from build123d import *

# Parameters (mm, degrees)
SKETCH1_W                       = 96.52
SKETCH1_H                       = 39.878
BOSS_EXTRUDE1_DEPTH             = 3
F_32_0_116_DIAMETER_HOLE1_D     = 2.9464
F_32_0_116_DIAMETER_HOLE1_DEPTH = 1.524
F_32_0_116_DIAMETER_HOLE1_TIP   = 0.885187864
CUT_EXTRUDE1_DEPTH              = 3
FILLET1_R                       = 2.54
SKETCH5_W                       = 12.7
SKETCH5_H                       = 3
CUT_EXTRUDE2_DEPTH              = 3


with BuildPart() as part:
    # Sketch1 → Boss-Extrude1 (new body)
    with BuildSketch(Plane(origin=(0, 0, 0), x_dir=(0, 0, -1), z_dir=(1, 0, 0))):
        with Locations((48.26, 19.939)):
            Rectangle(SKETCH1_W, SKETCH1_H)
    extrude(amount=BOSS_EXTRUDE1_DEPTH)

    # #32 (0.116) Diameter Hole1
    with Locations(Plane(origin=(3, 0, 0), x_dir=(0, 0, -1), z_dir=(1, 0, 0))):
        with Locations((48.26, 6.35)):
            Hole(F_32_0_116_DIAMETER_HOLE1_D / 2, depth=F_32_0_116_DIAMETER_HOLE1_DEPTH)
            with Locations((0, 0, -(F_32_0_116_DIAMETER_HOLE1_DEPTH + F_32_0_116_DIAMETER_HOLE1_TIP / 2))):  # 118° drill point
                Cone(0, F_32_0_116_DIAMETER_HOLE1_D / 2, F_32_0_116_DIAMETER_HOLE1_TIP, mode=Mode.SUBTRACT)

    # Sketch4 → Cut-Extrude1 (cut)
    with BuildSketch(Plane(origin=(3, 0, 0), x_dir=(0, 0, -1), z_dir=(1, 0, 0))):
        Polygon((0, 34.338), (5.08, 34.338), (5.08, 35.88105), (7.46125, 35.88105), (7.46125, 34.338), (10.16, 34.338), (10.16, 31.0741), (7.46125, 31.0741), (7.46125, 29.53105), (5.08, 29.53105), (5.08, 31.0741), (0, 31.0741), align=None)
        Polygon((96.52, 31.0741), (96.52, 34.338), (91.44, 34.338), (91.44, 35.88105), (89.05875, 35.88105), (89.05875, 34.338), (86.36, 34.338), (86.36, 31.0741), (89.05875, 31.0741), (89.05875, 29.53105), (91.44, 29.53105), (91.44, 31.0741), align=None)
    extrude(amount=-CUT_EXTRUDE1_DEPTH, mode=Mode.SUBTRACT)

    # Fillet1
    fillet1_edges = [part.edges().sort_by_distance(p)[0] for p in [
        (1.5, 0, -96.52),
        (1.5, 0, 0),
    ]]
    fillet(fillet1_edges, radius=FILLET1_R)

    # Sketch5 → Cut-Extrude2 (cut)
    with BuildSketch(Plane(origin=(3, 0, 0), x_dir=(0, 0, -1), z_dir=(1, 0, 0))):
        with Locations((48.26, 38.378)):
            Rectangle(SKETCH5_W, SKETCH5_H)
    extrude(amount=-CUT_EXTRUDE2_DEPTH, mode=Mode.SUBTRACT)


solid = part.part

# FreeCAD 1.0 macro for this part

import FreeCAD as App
import Part
import Sketcher
from FreeCAD import Vector
Q = App.Units.Quantity


def edges_at(feature, points):
    """Names of the edges that pass closest to the given points."""
    edges = feature.Shape.Edges
    near = lambda p: min(range(len(edges)), key=lambda i: edges[i].distToShape(Part.Vertex(*p))[0])
    return sorted({f"Edge{near(p) + 1}" for p in points})

doc = App.newDocument("Part")
body = doc.addObject("PartDesign::Body", "Body")

sketch1 = doc.addObject("Sketcher::SketchObject", "Sketch")
body.addObject(sketch1)
sketch1.AttachmentSupport = (doc.YZ_Plane, [""])
sketch1.MapMode = "FlatFace"
sketch1.addGeometry(Part.LineSegment(Vector(39.878, 0, 0), Vector(0, 0, 0)), False)
sketch1.addGeometry(Part.LineSegment(Vector(0, 0, 0), Vector(0, -96.52, 0)), False)
sketch1.addGeometry(Part.LineSegment(Vector(0, -96.52, 0), Vector(39.878, -96.52, 0)), False)
sketch1.addGeometry(Part.LineSegment(Vector(39.878, -96.52, 0), Vector(39.878, 0, 0)), False)
sketch1.addConstraint(Sketcher.Constraint("Coincident", 0, 2, 1, 1))
sketch1.addConstraint(Sketcher.Constraint("Coincident", 1, 2, 2, 1))
sketch1.addConstraint(Sketcher.Constraint("Coincident", 2, 2, 3, 1))
sketch1.addConstraint(Sketcher.Constraint("Coincident", 3, 2, 0, 1))
sketch1.addConstraint(Sketcher.Constraint("Horizontal", 0))
sketch1.addConstraint(Sketcher.Constraint("Vertical", 1))
sketch1.addConstraint(Sketcher.Constraint("Horizontal", 2))
sketch1.addConstraint(Sketcher.Constraint("Vertical", 3))
sketch1.addConstraint(Sketcher.Constraint("Coincident", 0, 2, -1, 1))
sketch1.addConstraint(Sketcher.Constraint("DistanceY", 1, 2, 1, 1, Q("3.8 in")))
sketch1.addConstraint(Sketcher.Constraint("DistanceX", 0, 2, 0, 1, Q("1.57 in")))
pad1 = doc.addObject("PartDesign::Pad", "Pad")
body.addObject(pad1)
pad1.Profile = sketch1
pad1.Length = 3

sketch2 = doc.addObject("Sketcher::SketchObject", "Sketch001")
body.addObject(sketch2)
sketch2.AttachmentSupport = (doc.YZ_Plane, [""])
sketch2.MapMode = "FlatFace"
sketch2.AttachmentOffset = App.Placement(Vector(0, 0, 3), App.Rotation())
sketch2.addGeometry(Part.Circle(Vector(6.35, -48.26, 0), Vector(0, 0, 1), 1.4732), False)
sketch2.addConstraint(Sketcher.Constraint("Diameter", 0, Q("0.116 in")))
sketch2.addConstraint(Sketcher.Constraint("DistanceY", 0, 3, -1, 1, Q("1.9 in")))
sketch2.addConstraint(Sketcher.Constraint("DistanceX", -1, 1, 0, 3, Q("0.25 in")))
doc.recompute()
hole = doc.addObject("PartDesign::Hole", "Hole")
body.addObject(hole)
hole.Profile = sketch2
hole.ThreadType = "None"
hole.Diameter = Q("0.116 in")
hole.DepthType = "Dimension"
hole.Depth = Q("0.06 in")
hole.DrillPoint = "Angled"
hole.DrillPointAngle = 118

sketch3 = doc.addObject("Sketcher::SketchObject", "Sketch002")
body.addObject(sketch3)
sketch3.AttachmentSupport = (doc.YZ_Plane, [""])
sketch3.MapMode = "FlatFace"
sketch3.AttachmentOffset = App.Placement(Vector(0, 0, 3), App.Rotation())
sketch3.addGeometry(Part.LineSegment(Vector(34.338, -5.08, 0), Vector(34.338, 0, 0)), False)
sketch3.addGeometry(Part.LineSegment(Vector(34.338, 0, 0), Vector(31.0741, 0, 0)), False)
sketch3.addGeometry(Part.LineSegment(Vector(31.0741, 0, 0), Vector(31.0741, -5.08, 0)), False)
sketch3.addGeometry(Part.LineSegment(Vector(31.0741, -5.08, 0), Vector(29.53105, -5.08, 0)), False)
sketch3.addGeometry(Part.LineSegment(Vector(29.53105, -5.08, 0), Vector(29.53105, -7.46125, 0)), False)
sketch3.addGeometry(Part.LineSegment(Vector(29.53105, -7.46125, 0), Vector(31.0741, -7.46125, 0)), False)
sketch3.addGeometry(Part.LineSegment(Vector(31.0741, -7.46125, 0), Vector(31.0741, -10.16, 0)), False)
sketch3.addGeometry(Part.LineSegment(Vector(31.0741, -10.16, 0), Vector(34.338, -10.16, 0)), False)
sketch3.addGeometry(Part.LineSegment(Vector(34.338, -10.16, 0), Vector(34.338, -7.46125, 0)), False)
sketch3.addGeometry(Part.LineSegment(Vector(34.338, -7.46125, 0), Vector(35.88105, -7.46125, 0)), False)
sketch3.addGeometry(Part.LineSegment(Vector(35.88105, -7.46125, 0), Vector(35.88105, -5.08, 0)), False)
sketch3.addGeometry(Part.LineSegment(Vector(35.88105, -5.08, 0), Vector(34.338, -5.08, 0)), False)
sketch3.addGeometry(Part.LineSegment(Vector(31.0741, -96.52, 0), Vector(34.338, -96.52, 0)), False)
sketch3.addGeometry(Part.LineSegment(Vector(34.338, -96.52, 0), Vector(34.338, -91.44, 0)), False)
sketch3.addGeometry(Part.LineSegment(Vector(34.338, -91.44, 0), Vector(35.88105, -91.44, 0)), False)
sketch3.addGeometry(Part.LineSegment(Vector(35.88105, -91.44, 0), Vector(35.88105, -89.05875, 0)), False)
sketch3.addGeometry(Part.LineSegment(Vector(35.88105, -89.05875, 0), Vector(34.338, -89.05875, 0)), False)
sketch3.addGeometry(Part.LineSegment(Vector(34.338, -89.05875, 0), Vector(34.338, -86.36, 0)), False)
sketch3.addGeometry(Part.LineSegment(Vector(34.338, -86.36, 0), Vector(31.0741, -86.36, 0)), False)
sketch3.addGeometry(Part.LineSegment(Vector(31.0741, -86.36, 0), Vector(31.0741, -89.05875, 0)), False)
sketch3.addGeometry(Part.LineSegment(Vector(31.0741, -89.05875, 0), Vector(29.53105, -89.05875, 0)), False)
sketch3.addGeometry(Part.LineSegment(Vector(29.53105, -89.05875, 0), Vector(29.53105, -91.44, 0)), False)
sketch3.addGeometry(Part.LineSegment(Vector(29.53105, -91.44, 0), Vector(31.0741, -91.44, 0)), False)
sketch3.addGeometry(Part.LineSegment(Vector(31.0741, -91.44, 0), Vector(31.0741, -96.52, 0)), False)
sketch3.addConstraint(Sketcher.Constraint("Coincident", 0, 2, 1, 1))
sketch3.addConstraint(Sketcher.Constraint("Coincident", 1, 2, 2, 1))
sketch3.addConstraint(Sketcher.Constraint("Coincident", 2, 2, 3, 1))
sketch3.addConstraint(Sketcher.Constraint("Coincident", 3, 2, 4, 1))
sketch3.addConstraint(Sketcher.Constraint("Coincident", 4, 2, 5, 1))
sketch3.addConstraint(Sketcher.Constraint("Coincident", 5, 2, 6, 1))
sketch3.addConstraint(Sketcher.Constraint("Coincident", 6, 2, 7, 1))
sketch3.addConstraint(Sketcher.Constraint("Coincident", 7, 2, 8, 1))
sketch3.addConstraint(Sketcher.Constraint("Coincident", 8, 2, 9, 1))
sketch3.addConstraint(Sketcher.Constraint("Coincident", 9, 2, 10, 1))
sketch3.addConstraint(Sketcher.Constraint("Coincident", 10, 2, 11, 1))
sketch3.addConstraint(Sketcher.Constraint("Coincident", 11, 2, 0, 1))
sketch3.addConstraint(Sketcher.Constraint("Coincident", 12, 2, 13, 1))
sketch3.addConstraint(Sketcher.Constraint("Coincident", 13, 2, 14, 1))
sketch3.addConstraint(Sketcher.Constraint("Coincident", 14, 2, 15, 1))
sketch3.addConstraint(Sketcher.Constraint("Coincident", 15, 2, 16, 1))
sketch3.addConstraint(Sketcher.Constraint("Coincident", 16, 2, 17, 1))
sketch3.addConstraint(Sketcher.Constraint("Coincident", 17, 2, 18, 1))
sketch3.addConstraint(Sketcher.Constraint("Coincident", 18, 2, 19, 1))
sketch3.addConstraint(Sketcher.Constraint("Coincident", 19, 2, 20, 1))
sketch3.addConstraint(Sketcher.Constraint("Coincident", 20, 2, 21, 1))
sketch3.addConstraint(Sketcher.Constraint("Coincident", 21, 2, 22, 1))
sketch3.addConstraint(Sketcher.Constraint("Coincident", 22, 2, 23, 1))
sketch3.addConstraint(Sketcher.Constraint("Coincident", 23, 2, 12, 1))
sketch3.addConstraint(Sketcher.Constraint("Vertical", 0))
sketch3.addConstraint(Sketcher.Constraint("Horizontal", 1))
sketch3.addConstraint(Sketcher.Constraint("Vertical", 2))
sketch3.addConstraint(Sketcher.Constraint("Horizontal", 3))
sketch3.addConstraint(Sketcher.Constraint("Vertical", 4))
sketch3.addConstraint(Sketcher.Constraint("Horizontal", 5))
sketch3.addConstraint(Sketcher.Constraint("Vertical", 6))
sketch3.addConstraint(Sketcher.Constraint("Horizontal", 7))
sketch3.addConstraint(Sketcher.Constraint("Vertical", 8))
sketch3.addConstraint(Sketcher.Constraint("Horizontal", 9))
sketch3.addConstraint(Sketcher.Constraint("Vertical", 10))
sketch3.addConstraint(Sketcher.Constraint("Horizontal", 11))
sketch3.addConstraint(Sketcher.Constraint("Horizontal", 12))
sketch3.addConstraint(Sketcher.Constraint("Vertical", 13))
sketch3.addConstraint(Sketcher.Constraint("Horizontal", 14))
sketch3.addConstraint(Sketcher.Constraint("Vertical", 15))
sketch3.addConstraint(Sketcher.Constraint("Horizontal", 16))
sketch3.addConstraint(Sketcher.Constraint("Vertical", 17))
sketch3.addConstraint(Sketcher.Constraint("Horizontal", 18))
sketch3.addConstraint(Sketcher.Constraint("Vertical", 19))
sketch3.addConstraint(Sketcher.Constraint("Horizontal", 20))
sketch3.addConstraint(Sketcher.Constraint("Vertical", 21))
sketch3.addConstraint(Sketcher.Constraint("Horizontal", 22))
sketch3.addConstraint(Sketcher.Constraint("Vertical", 23))
sketch3.addConstraint(Sketcher.Constraint("PointOnObject", 0, 2, -1))
sketch3.addConstraint(Sketcher.Constraint("Horizontal", 5, 2, 8, 2))
sketch3.addConstraint(Sketcher.Constraint("Horizontal", 3, 2, 10, 2))
sketch3.addConstraint(Sketcher.Constraint("Horizontal", 16, 2, 19, 2))
sketch3.addConstraint(Sketcher.Constraint("Horizontal", 14, 2, 21, 2))
sketch3.addConstraint(Sketcher.Constraint("Vertical", 2, 2, 5, 2))
sketch3.addConstraint(Sketcher.Constraint("Vertical", 0, 2, 7, 2))
sketch3.addConstraint(Sketcher.Constraint("Vertical", 11, 2, 12, 2))
sketch3.addConstraint(Sketcher.Constraint("Vertical", 10, 2, 14, 2))
sketch3.addConstraint(Sketcher.Constraint("Vertical", 13, 2, 16, 2))
sketch3.addConstraint(Sketcher.Constraint("Vertical", 6, 2, 18, 2))
sketch3.addConstraint(Sketcher.Constraint("Vertical", 4, 2, 20, 2))
sketch3.addConstraint(Sketcher.Constraint("Vertical", 19, 2, 22, 2))
sketch3.addConstraint(Sketcher.Constraint("Equal", 5, 9))
sketch3.addConstraint(Sketcher.Constraint("Equal", 2, 13))
sketch3.addConstraint(Sketcher.Constraint("Equal", 10, 15))
sketch3.addConstraint(Sketcher.Constraint("Equal", 8, 17))
sketch3.addConstraint(Sketcher.Constraint("DistanceY", 0, 1, 0, 2, Q("0.2 in")))
sketch3.addConstraint(Sketcher.Constraint("DistanceY", 6, 2, -1, 1, Q("0.4 in")))
sketch3.addConstraint(Sketcher.Constraint("DistanceY", 12, 2, -1, 1, Q("3.8 in")))
sketch3.addConstraint(Sketcher.Constraint("DistanceY", 4, 2, 4, 1, Q("0.09375 in")))
sketch3.addConstraint(Sketcher.Constraint("DistanceX", 1, 2, 1, 1, Q("0.1285 in")))
sketch3.addConstraint(Sketcher.Constraint("DistanceX", 3, 2, 3, 1, Q("1.54305 mm")))
sketch3.addConstraint(Sketcher.Constraint("DistanceX", -1, 1, 0, 2, Q("34.338 mm")))
pocket1 = doc.addObject("PartDesign::Pocket", "Pocket")
body.addObject(pocket1)
pocket1.Profile = sketch3
pocket1.Length = 3
doc.recompute()

fillet = doc.addObject("PartDesign::Fillet", "Fillet")
body.addObject(fillet)
fillet.Base = (pocket1, edges_at(pocket1, [(1.5, 0, -96.52), (1.5, 0, 0)]))
fillet.Radius = Q("0.1 in")

sketch4 = doc.addObject("Sketcher::SketchObject", "Sketch003")
body.addObject(sketch4)
sketch4.AttachmentSupport = (doc.YZ_Plane, [""])
sketch4.MapMode = "FlatFace"
sketch4.AttachmentOffset = App.Placement(Vector(0, 0, 3), App.Rotation())
sketch4.addGeometry(Part.LineSegment(Vector(39.878, -41.91, 0), Vector(36.878, -41.91, 0)), False)
sketch4.addGeometry(Part.LineSegment(Vector(36.878, -41.91, 0), Vector(36.878, -54.61, 0)), False)
sketch4.addGeometry(Part.LineSegment(Vector(36.878, -54.61, 0), Vector(39.878, -54.61, 0)), False)
sketch4.addGeometry(Part.LineSegment(Vector(39.878, -54.61, 0), Vector(39.878, -41.91, 0)), False)
sketch4.addConstraint(Sketcher.Constraint("Coincident", 0, 2, 1, 1))
sketch4.addConstraint(Sketcher.Constraint("Coincident", 1, 2, 2, 1))
sketch4.addConstraint(Sketcher.Constraint("Coincident", 2, 2, 3, 1))
sketch4.addConstraint(Sketcher.Constraint("Coincident", 3, 2, 0, 1))
sketch4.addConstraint(Sketcher.Constraint("Horizontal", 0))
sketch4.addConstraint(Sketcher.Constraint("Vertical", 1))
sketch4.addConstraint(Sketcher.Constraint("Horizontal", 2))
sketch4.addConstraint(Sketcher.Constraint("Vertical", 3))
sketch4.addConstraint(Sketcher.Constraint("DistanceY", 1, 2, 1, 1, Q("0.5 in")))
sketch4.addConstraint(Sketcher.Constraint("DistanceY", 0, 2, -1, 1, Q("1.65 in")))
sketch4.addConstraint(Sketcher.Constraint("DistanceX", -1, 1, 2, 2, Q("1.57 in")))
sketch4.addConstraint(Sketcher.Constraint("DistanceX", 0, 2, 0, 1, Q("3 mm")))
pocket2 = doc.addObject("PartDesign::Pocket", "Pocket001")
body.addObject(pocket2)
pocket2.Profile = sketch4
pocket2.Length = 3

doc.recompute()
